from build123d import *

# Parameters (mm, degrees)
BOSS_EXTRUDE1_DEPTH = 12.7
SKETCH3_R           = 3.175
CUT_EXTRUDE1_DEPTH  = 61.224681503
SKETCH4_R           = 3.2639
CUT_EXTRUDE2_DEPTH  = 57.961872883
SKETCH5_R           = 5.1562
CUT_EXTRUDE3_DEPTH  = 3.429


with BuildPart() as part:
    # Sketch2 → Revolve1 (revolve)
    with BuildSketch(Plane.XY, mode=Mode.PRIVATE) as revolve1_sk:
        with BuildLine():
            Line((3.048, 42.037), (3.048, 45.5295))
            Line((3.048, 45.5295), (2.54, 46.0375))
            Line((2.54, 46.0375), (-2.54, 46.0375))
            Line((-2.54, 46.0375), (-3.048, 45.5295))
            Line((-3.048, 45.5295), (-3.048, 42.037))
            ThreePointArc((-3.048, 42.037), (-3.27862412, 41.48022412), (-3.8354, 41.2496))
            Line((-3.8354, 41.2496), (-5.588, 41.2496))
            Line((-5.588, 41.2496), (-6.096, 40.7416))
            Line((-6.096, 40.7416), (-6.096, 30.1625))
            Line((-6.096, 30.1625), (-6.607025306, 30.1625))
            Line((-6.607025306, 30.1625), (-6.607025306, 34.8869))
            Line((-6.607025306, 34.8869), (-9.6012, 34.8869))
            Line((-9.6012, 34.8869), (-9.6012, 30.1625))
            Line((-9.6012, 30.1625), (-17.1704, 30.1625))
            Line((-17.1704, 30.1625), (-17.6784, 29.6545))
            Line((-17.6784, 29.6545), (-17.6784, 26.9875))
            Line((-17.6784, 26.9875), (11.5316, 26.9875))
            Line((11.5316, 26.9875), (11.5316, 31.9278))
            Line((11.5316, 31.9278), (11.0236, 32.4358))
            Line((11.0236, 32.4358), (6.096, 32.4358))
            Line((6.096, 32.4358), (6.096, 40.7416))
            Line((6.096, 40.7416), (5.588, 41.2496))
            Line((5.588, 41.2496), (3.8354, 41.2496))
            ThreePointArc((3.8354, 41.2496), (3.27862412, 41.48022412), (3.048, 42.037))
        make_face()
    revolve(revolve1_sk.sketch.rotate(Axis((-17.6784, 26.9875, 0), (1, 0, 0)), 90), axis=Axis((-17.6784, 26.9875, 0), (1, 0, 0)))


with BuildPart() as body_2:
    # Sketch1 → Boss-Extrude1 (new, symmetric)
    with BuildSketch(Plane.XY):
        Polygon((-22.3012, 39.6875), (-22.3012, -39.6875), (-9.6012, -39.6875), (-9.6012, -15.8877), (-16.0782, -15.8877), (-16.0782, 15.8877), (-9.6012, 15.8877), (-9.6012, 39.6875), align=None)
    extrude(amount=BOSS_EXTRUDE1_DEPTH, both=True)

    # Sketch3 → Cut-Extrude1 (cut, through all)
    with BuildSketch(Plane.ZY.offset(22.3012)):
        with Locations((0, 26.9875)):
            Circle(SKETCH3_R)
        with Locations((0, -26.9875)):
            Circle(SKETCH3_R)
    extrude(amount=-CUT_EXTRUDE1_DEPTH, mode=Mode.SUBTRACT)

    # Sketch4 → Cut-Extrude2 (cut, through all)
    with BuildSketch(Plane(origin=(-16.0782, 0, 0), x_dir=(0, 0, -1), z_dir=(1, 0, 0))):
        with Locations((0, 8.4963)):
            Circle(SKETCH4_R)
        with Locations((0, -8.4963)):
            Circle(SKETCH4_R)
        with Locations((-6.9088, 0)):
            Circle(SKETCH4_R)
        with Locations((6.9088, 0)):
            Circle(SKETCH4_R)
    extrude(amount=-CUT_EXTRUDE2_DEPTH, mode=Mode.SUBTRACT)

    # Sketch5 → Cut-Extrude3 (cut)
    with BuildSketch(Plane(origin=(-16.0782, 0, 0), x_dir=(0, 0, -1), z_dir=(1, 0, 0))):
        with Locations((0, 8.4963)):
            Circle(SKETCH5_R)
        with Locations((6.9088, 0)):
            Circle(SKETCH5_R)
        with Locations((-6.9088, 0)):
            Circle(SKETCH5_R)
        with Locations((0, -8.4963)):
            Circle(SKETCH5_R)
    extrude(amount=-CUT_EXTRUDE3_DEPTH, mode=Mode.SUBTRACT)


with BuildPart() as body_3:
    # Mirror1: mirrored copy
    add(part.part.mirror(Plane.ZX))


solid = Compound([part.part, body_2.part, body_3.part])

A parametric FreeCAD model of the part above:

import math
import FreeCAD as App
import Part
import Sketcher

V = App.Vector
Q = App.Units.Quantity


def add_polygon(sketch, points):
    """Adds a closed chain of lines whose ends are joined by coincident constraints."""
    first, n = sketch.GeometryCount, len(points)
    for a, b in zip(points, points[1:] + points[:1]):
        sketch.addGeometry(Part.LineSegment(App.Vector(*a, 0), App.Vector(*b, 0)), False)
    for i in range(n):
        sketch.addConstraint(Sketcher.Constraint("Coincident", first + i, 2, first + (i + 1) % n, 1))

doc = App.newDocument("Part")
body = doc.addObject("PartDesign::Body", "Body")

sketch1 = body.newObject("Sketcher::SketchObject", "Sketch")
sketch1.AttachmentSupport = (doc.getObject("XY_Plane"), [""])
sketch1.MapMode = "FlatFace"
sketch1.addGeometry([
    Part.LineSegment(V(3, 42, 0), V(3, 45.5, 0)),
    Part.LineSegment(V(3, 45.5, 0), V(2.5, 46, 0)),
    Part.LineSegment(V(2.5, 46, 0), V(-2.5, 46, 0)),
    Part.LineSegment(V(-2.5, 46, 0), V(-3, 45.5, 0)),
    Part.LineSegment(V(-3, 45.5, 0), V(-3, 42, 0)),
    Part.ArcOfCircle(Part.Circle(V(-3.8, 42, 0), V(0, 0, 1), 0.8), math.radians(-90), math.radians(0)),
    Part.LineSegment(V(-3.8, 41.2, 0), V(-5.6, 41.2, 0)),
    Part.LineSegment(V(-5.6, 41.2, 0), V(-6.1, 40.7, 0)),
    Part.LineSegment(V(-6.1, 40.7, 0), V(-6.1, 30.2, 0)),
    Part.LineSegment(V(-6.1, 30.2, 0), V(-6.6, 30.2, 0)),
    Part.LineSegment(V(-6.6, 30.2, 0), V(-6.6, 34.9, 0)),
    Part.LineSegment(V(-6.6, 34.9, 0), V(-9.6, 34.9, 0)),
    Part.LineSegment(V(-9.6, 34.9, 0), V(-9.6, 30.2, 0)),
    Part.LineSegment(V(-9.6, 30.2, 0), V(-17.2, 30.2, 0)),
    Part.LineSegment(V(-17.2, 30.2, 0), V(-17.7, 29.7, 0)),
    Part.LineSegment(V(-17.7, 29.7, 0), V(-17.7, 27, 0)),
    Part.LineSegment(V(-17.7, 27, 0), V(11.5, 27, 0)),
    Part.LineSegment(V(11.5, 27, 0), V(11.5, 31.9, 0)),
    Part.LineSegment(V(11.5, 31.9, 0), V(11, 32.4, 0)),
    Part.LineSegment(V(11, 32.4, 0), V(6.1, 32.4, 0)),
    Part.LineSegment(V(6.1, 32.4, 0), V(6.1, 40.7, 0)),
    Part.LineSegment(V(6.1, 40.7, 0), V(5.6, 41.2, 0)),
    Part.LineSegment(V(5.6, 41.2, 0), V(3.8, 41.2, 0)),
    Part.ArcOfCircle(Part.Circle(V(3.8, 42, 0), V(0, 0, 1), 0.8), math.radians(180), math.radians(270)),
], False)
sketch1.addGeometry(Part.LineSegment(V(-17.7, 27, 0), V(11.5, 27, 0)), True)
sketch1.addConstraint([
    Sketcher.Constraint("Coincident", 0, 2, 1, 1),
    Sketcher.Constraint("Coincident", 1, 2, 2, 1),
    Sketcher.Constraint("Coincident", 2, 2, 3, 1),
    Sketcher.Constraint("Coincident", 3, 2, 4, 1),
    Sketcher.Constraint("Tangent", 4, 2, 5, 2),
    Sketcher.Constraint("Tangent", 5, 1, 6, 1),
    Sketcher.Constraint("Coincident", 6, 2, 7, 1),
    Sketcher.Constraint("Coincident", 7, 2, 8, 1),
    Sketcher.Constraint("Coincident", 8, 2, 9, 1),
    Sketcher.Constraint("Coincident", 9, 2, 10, 1),
    Sketcher.Constraint("Coincident", 10, 2, 11, 1),
    Sketcher.Constraint("Coincident", 11, 2, 12, 1),
    Sketcher.Constraint("Coincident", 12, 2, 13, 1),
    Sketcher.Constraint("Coincident", 13, 2, 14, 1),
    Sketcher.Constraint("Coincident", 14, 2, 15, 1),
    Sketcher.Constraint("Coincident", 15, 2, 16, 1),
    Sketcher.Constraint("Coincident", 16, 2, 17, 1),
    Sketcher.Constraint("Coincident", 17, 2, 18, 1),
    Sketcher.Constraint("Coincident", 18, 2, 19, 1),
    Sketcher.Constraint("Coincident", 19, 2, 20, 1),
    Sketcher.Constraint("Coincident", 20, 2, 21, 1),
    Sketcher.Constraint("Coincident", 21, 2, 22, 1),
    Sketcher.Constraint("Tangent", 22, 2, 23, 2),
    Sketcher.Constraint("Tangent", 23, 1, 0, 1),
    Sketcher.Constraint("Vertical", 0),
    Sketcher.Constraint("Horizontal", 2),
    Sketcher.Constraint("Vertical", 4),
    Sketcher.Constraint("Horizontal", 6),
    Sketcher.Constraint("Vertical", 8),
    Sketcher.Constraint("Horizontal", 9),
    Sketcher.Constraint("Vertical", 10),
    Sketcher.Constraint("Horizontal", 11),
    Sketcher.Constraint("Vertical", 12),
    Sketcher.Constraint("Horizontal", 13),
    Sketcher.Constraint("Vertical", 15),
    Sketcher.Constraint("Horizontal", 16),
    Sketcher.Constraint("Vertical", 17),
    Sketcher.Constraint("Horizontal", 19),
    Sketcher.Constraint("Vertical", 20),
    Sketcher.Constraint("Horizontal", 22),
    Sketcher.Constraint("Horizontal", 24),
    Sketcher.Constraint("Coincident", 24, 1, 15, 2),
    Sketcher.Constraint("Equal", 5, 23),
    Sketcher.Constraint("Symmetric", 5, 3, 23, 3, -2),
    Sketcher.Constraint("Symmetric", 7, 2, 20, 2, -2),
    Sketcher.Constraint("Perpendicular", 1, 3),
    Sketcher.Constraint("Parallel", 3, 7),
    Sketcher.Constraint("Parallel", 7, 14),
    Sketcher.Constraint("Perpendicular", 14, 18),
    Sketcher.Constraint("Parallel", 18, 21),
    Sketcher.Constraint("Horizontal", 0, 2, 3, 2),
    Sketcher.Constraint("Horizontal", 9, 2, 12, 2),
    Sketcher.Constraint("Vertical", 17, 2, 24, 2),
    Sketcher.Constraint("Equal", 6, 22),
    Sketcher.Constraint("Equal", 3, 7),
    Sketcher.Constraint("Equal", 7, 14),
    Sketcher.Constraint("Equal", 14, 18),
    Sketcher.Constraint("DistanceX", 2, 2, 2, 1, Q("0.2 in")),
    Sketcher.Constraint("Radius", 5, Q("0.031 in")),
    Sketcher.Constraint("DistanceX", 16, 1, 16, 2, Q("1.15 in")),
    Sketcher.Constraint("DistanceX", 6, 2, 4, 2, Q("0.1 in")),
    Sketcher.Constraint("DistanceX", 13, 2, 13, 1, Q("0.298 in")),
    Sketcher.Constraint("DistanceX", 19, 2, 19, 1, Q("0.194 in")),
    Sketcher.Constraint("DistanceY", 10, 1, 10, 2, Q("0.186 in")),
    Sketcher.Constraint("DistanceY", 15, 2, 15, 1, Q("0.105 in")),
    Sketcher.Constraint("DistanceY", 20, 1, 20, 2, Q("0.327 in")),
    Sketcher.Constraint("DistanceX", -1, 1, 0, 2, Q("0.12 in")),
    Sketcher.Constraint("DistanceY", 16, 2, 0, 2, Q("0.73 in")),
    Sketcher.Constraint("DistanceY", 0, 1, 0, 2, Q("0.1375 in")),
    Sketcher.Constraint("DistanceY", -1, 1, 5, 3, Q("1.655 in")),
    Sketcher.Constraint("DistanceX", 9, 2, 9, 1, 0.511025),
])
revolution = body.newObject("PartDesign::Revolution", "Revolution")
revolution.Profile = sketch1
revolution.ReferenceAxis = (sketch1, ["Axis0"])
revolution.Angle = 360
body2 = doc.addObject("PartDesign::Body", "Body001")

sketch2 = body2.newObject("Sketcher::SketchObject", "Sketch001")
sketch2.AttachmentSupport = (doc.getObject("XY_Plane001"), [""])
sketch2.MapMode = "FlatFace"
add_polygon(sketch2, [(-22, 40), (-22, -40), (-10, -40), (-10, -16), (-16, -16), (-16, 16), (-10, 16), (-10, 40)])
sketch2.addConstraint([
    Sketcher.Constraint("Vertical", 0),
    Sketcher.Constraint("Horizontal", 1),
    Sketcher.Constraint("Vertical", 2),
    Sketcher.Constraint("Horizontal", 3),
    Sketcher.Constraint("Vertical", 4),
    Sketcher.Constraint("Horizontal", 5),
    Sketcher.Constraint("Vertical", 6),
    Sketcher.Constraint("Horizontal", 7),
    Sketcher.Constraint("Symmetric", 2, 2, 5, 2, -1),
    Sketcher.Constraint("Equal", 2, 6),
    Sketcher.Constraint("DistanceX", 1, 1, 1, 2, Q("0.5 in")),
    Sketcher.Constraint("DistanceX", 3, 2, 3, 1, Q("0.255 in")),
    Sketcher.Constraint("DistanceY", 0, 2, 0, 1, Q("3.125 in")),
    Sketcher.Constraint("DistanceY", 2, 1, 2, 2, Q("0.937 in")),
    Sketcher.Constraint("DistanceX", 0, 2, -1, 1, Q("0.878 in")),
])
pad1 = body2.newObject("PartDesign::Pad", "Pad")
pad1.Profile = sketch2
pad1.Length = Q("1 in")
pad1.Midplane = True

sketch3 = body2.newObject("Sketcher::SketchObject", "Sketch002")
sketch3.AttachmentSupport = (doc.getObject("YZ_Plane001"), [""])
sketch3.MapMode = "FlatFace"
sketch3.AttachmentOffset = App.Placement(V(0, 0, -0.878 * 25.4), App.Rotation())
sketch3.addGeometry([
    Part.Circle(V(27, 0, 0), V(0, 0, 1), 3.2),
    Part.Circle(V(-27, 0, 0), V(0, 0, 1), 3.2),
], False)
sketch3.addConstraint([
    Sketcher.Constraint("Equal", 0, 1),
    Sketcher.Constraint("Symmetric", 0, 3, 1, 3, -1, 1),
    Sketcher.Constraint("PointOnObject", 0, 3, -1),
    Sketcher.Constraint("Diameter", 0, Q("0.25 in")),
    Sketcher.Constraint("DistanceX", -1, 1, 0, 3, Q("1.0625 in")),
])
pocket1 = body2.newObject("PartDesign::Pocket", "Pocket")
pocket1.Profile = sketch3
pocket1.Type = "ThroughAll"
pocket1.Reversed = True

sketch4 = body2.newObject("Sketcher::SketchObject", "Sketch003")
sketch4.AttachmentSupport = (doc.getObject("YZ_Plane001"), [""])
sketch4.MapMode = "FlatFace"
sketch4.AttachmentOffset = App.Placement(V(0, 0, -0.633 * 25.4), App.Rotation())
sketch4.addGeometry([
    Part.Circle(V(8.5, 0, 0), V(0, 0, 1), 3.3),
    Part.Circle(V(-8.5, 0, 0), V(0, 0, 1), 3.3),
    Part.Circle(V(0, 6.9, 0), V(0, 0, 1), 3.3),
    Part.Circle(V(0, -6.9, 0), V(0, 0, 1), 3.3),
], False)
sketch4.addConstraint([
    Sketcher.Constraint("Equal", 0, 1),
    Sketcher.Constraint("Equal", 1, 2),
    Sketcher.Constraint("Equal", 2, 3),
    Sketcher.Constraint("Symmetric", 0, 3, 1, 3, -1, 1),
    Sketcher.Constraint("Symmetric", 2, 3, 3, 3, -1, 1),
    Sketcher.Constraint("PointOnObject", 0, 3, -1),
    Sketcher.Constraint("PointOnObject", 2, 3, -2),
    Sketcher.Constraint("Diameter", 0, Q("0.257 in")),
    Sketcher.Constraint("DistanceY", -1, 1, 2, 3, Q("0.272 in")),
    Sketcher.Constraint("DistanceX", 1, 3, 0, 3, Q("0.669 in")),
])
pocket2 = body2.newObject("PartDesign::Pocket", "Pocket001")
pocket2.Profile = sketch4
pocket2.Type = "ThroughAll"

sketch5 = body2.newObject("Sketcher::SketchObject", "Sketch004")
sketch5.AttachmentSupport = (doc.getObject("YZ_Plane001"), [""])
sketch5.MapMode = "FlatFace"
sketch5.AttachmentOffset = App.Placement(V(0, 0, -0.633 * 25.4), App.Rotation())
sketch5.addGeometry([
    Part.Circle(V(8, 0, 0), V(0, 0, 1), 5),
    Part.Circle(V(0, -7, 0), V(0, 0, 1), 5),
    Part.Circle(V(0, 7, 0), V(0, 0, 1), 5),
    Part.Circle(V(-8, 0, 0), V(0, 0, 1), 5),
], False)
sketch5.addConstraint([
    Sketcher.Constraint("Equal", 0, 1),
    Sketcher.Constraint("Equal", 1, 2),
    Sketcher.Constraint("Equal", 2, 3),
    Sketcher.Constraint("Symmetric", 1, 3, 2, 3, -1, 1),
    Sketcher.Constraint("Symmetric", 0, 3, 3, 3, -1, 1),
    Sketcher.Constraint("PointOnObject", 0, 3, -1),
    Sketcher.Constraint("PointOnObject", 1, 3, -2),
    Sketcher.Constraint("Diameter", 0, Q("0.406 in")),
    Sketcher.Constraint("DistanceY", 1, 3, -1, 1, Q("0.272 in")),
    Sketcher.Constraint("DistanceX", 3, 3, 0, 3, Q("0.669 in")),
])
pocket3 = body2.newObject("PartDesign::Pocket", "Pocket002")
pocket3.Profile = sketch5
pocket3.Length = Q("0.135 in")
body3 = doc.addObject("PartDesign::Body", "Body002")
doc.recompute()

mirroring = doc.addObject("Part::Mirroring", "Mirroring")
mirroring.Source = body
mirroring.Base = V(0, 0, 0)
mirroring.Normal = V(0, 1, 0)
body3.BaseFeature = mirroring
doc.recompute()
mirroring.Visibility = False

doc.recompute()
